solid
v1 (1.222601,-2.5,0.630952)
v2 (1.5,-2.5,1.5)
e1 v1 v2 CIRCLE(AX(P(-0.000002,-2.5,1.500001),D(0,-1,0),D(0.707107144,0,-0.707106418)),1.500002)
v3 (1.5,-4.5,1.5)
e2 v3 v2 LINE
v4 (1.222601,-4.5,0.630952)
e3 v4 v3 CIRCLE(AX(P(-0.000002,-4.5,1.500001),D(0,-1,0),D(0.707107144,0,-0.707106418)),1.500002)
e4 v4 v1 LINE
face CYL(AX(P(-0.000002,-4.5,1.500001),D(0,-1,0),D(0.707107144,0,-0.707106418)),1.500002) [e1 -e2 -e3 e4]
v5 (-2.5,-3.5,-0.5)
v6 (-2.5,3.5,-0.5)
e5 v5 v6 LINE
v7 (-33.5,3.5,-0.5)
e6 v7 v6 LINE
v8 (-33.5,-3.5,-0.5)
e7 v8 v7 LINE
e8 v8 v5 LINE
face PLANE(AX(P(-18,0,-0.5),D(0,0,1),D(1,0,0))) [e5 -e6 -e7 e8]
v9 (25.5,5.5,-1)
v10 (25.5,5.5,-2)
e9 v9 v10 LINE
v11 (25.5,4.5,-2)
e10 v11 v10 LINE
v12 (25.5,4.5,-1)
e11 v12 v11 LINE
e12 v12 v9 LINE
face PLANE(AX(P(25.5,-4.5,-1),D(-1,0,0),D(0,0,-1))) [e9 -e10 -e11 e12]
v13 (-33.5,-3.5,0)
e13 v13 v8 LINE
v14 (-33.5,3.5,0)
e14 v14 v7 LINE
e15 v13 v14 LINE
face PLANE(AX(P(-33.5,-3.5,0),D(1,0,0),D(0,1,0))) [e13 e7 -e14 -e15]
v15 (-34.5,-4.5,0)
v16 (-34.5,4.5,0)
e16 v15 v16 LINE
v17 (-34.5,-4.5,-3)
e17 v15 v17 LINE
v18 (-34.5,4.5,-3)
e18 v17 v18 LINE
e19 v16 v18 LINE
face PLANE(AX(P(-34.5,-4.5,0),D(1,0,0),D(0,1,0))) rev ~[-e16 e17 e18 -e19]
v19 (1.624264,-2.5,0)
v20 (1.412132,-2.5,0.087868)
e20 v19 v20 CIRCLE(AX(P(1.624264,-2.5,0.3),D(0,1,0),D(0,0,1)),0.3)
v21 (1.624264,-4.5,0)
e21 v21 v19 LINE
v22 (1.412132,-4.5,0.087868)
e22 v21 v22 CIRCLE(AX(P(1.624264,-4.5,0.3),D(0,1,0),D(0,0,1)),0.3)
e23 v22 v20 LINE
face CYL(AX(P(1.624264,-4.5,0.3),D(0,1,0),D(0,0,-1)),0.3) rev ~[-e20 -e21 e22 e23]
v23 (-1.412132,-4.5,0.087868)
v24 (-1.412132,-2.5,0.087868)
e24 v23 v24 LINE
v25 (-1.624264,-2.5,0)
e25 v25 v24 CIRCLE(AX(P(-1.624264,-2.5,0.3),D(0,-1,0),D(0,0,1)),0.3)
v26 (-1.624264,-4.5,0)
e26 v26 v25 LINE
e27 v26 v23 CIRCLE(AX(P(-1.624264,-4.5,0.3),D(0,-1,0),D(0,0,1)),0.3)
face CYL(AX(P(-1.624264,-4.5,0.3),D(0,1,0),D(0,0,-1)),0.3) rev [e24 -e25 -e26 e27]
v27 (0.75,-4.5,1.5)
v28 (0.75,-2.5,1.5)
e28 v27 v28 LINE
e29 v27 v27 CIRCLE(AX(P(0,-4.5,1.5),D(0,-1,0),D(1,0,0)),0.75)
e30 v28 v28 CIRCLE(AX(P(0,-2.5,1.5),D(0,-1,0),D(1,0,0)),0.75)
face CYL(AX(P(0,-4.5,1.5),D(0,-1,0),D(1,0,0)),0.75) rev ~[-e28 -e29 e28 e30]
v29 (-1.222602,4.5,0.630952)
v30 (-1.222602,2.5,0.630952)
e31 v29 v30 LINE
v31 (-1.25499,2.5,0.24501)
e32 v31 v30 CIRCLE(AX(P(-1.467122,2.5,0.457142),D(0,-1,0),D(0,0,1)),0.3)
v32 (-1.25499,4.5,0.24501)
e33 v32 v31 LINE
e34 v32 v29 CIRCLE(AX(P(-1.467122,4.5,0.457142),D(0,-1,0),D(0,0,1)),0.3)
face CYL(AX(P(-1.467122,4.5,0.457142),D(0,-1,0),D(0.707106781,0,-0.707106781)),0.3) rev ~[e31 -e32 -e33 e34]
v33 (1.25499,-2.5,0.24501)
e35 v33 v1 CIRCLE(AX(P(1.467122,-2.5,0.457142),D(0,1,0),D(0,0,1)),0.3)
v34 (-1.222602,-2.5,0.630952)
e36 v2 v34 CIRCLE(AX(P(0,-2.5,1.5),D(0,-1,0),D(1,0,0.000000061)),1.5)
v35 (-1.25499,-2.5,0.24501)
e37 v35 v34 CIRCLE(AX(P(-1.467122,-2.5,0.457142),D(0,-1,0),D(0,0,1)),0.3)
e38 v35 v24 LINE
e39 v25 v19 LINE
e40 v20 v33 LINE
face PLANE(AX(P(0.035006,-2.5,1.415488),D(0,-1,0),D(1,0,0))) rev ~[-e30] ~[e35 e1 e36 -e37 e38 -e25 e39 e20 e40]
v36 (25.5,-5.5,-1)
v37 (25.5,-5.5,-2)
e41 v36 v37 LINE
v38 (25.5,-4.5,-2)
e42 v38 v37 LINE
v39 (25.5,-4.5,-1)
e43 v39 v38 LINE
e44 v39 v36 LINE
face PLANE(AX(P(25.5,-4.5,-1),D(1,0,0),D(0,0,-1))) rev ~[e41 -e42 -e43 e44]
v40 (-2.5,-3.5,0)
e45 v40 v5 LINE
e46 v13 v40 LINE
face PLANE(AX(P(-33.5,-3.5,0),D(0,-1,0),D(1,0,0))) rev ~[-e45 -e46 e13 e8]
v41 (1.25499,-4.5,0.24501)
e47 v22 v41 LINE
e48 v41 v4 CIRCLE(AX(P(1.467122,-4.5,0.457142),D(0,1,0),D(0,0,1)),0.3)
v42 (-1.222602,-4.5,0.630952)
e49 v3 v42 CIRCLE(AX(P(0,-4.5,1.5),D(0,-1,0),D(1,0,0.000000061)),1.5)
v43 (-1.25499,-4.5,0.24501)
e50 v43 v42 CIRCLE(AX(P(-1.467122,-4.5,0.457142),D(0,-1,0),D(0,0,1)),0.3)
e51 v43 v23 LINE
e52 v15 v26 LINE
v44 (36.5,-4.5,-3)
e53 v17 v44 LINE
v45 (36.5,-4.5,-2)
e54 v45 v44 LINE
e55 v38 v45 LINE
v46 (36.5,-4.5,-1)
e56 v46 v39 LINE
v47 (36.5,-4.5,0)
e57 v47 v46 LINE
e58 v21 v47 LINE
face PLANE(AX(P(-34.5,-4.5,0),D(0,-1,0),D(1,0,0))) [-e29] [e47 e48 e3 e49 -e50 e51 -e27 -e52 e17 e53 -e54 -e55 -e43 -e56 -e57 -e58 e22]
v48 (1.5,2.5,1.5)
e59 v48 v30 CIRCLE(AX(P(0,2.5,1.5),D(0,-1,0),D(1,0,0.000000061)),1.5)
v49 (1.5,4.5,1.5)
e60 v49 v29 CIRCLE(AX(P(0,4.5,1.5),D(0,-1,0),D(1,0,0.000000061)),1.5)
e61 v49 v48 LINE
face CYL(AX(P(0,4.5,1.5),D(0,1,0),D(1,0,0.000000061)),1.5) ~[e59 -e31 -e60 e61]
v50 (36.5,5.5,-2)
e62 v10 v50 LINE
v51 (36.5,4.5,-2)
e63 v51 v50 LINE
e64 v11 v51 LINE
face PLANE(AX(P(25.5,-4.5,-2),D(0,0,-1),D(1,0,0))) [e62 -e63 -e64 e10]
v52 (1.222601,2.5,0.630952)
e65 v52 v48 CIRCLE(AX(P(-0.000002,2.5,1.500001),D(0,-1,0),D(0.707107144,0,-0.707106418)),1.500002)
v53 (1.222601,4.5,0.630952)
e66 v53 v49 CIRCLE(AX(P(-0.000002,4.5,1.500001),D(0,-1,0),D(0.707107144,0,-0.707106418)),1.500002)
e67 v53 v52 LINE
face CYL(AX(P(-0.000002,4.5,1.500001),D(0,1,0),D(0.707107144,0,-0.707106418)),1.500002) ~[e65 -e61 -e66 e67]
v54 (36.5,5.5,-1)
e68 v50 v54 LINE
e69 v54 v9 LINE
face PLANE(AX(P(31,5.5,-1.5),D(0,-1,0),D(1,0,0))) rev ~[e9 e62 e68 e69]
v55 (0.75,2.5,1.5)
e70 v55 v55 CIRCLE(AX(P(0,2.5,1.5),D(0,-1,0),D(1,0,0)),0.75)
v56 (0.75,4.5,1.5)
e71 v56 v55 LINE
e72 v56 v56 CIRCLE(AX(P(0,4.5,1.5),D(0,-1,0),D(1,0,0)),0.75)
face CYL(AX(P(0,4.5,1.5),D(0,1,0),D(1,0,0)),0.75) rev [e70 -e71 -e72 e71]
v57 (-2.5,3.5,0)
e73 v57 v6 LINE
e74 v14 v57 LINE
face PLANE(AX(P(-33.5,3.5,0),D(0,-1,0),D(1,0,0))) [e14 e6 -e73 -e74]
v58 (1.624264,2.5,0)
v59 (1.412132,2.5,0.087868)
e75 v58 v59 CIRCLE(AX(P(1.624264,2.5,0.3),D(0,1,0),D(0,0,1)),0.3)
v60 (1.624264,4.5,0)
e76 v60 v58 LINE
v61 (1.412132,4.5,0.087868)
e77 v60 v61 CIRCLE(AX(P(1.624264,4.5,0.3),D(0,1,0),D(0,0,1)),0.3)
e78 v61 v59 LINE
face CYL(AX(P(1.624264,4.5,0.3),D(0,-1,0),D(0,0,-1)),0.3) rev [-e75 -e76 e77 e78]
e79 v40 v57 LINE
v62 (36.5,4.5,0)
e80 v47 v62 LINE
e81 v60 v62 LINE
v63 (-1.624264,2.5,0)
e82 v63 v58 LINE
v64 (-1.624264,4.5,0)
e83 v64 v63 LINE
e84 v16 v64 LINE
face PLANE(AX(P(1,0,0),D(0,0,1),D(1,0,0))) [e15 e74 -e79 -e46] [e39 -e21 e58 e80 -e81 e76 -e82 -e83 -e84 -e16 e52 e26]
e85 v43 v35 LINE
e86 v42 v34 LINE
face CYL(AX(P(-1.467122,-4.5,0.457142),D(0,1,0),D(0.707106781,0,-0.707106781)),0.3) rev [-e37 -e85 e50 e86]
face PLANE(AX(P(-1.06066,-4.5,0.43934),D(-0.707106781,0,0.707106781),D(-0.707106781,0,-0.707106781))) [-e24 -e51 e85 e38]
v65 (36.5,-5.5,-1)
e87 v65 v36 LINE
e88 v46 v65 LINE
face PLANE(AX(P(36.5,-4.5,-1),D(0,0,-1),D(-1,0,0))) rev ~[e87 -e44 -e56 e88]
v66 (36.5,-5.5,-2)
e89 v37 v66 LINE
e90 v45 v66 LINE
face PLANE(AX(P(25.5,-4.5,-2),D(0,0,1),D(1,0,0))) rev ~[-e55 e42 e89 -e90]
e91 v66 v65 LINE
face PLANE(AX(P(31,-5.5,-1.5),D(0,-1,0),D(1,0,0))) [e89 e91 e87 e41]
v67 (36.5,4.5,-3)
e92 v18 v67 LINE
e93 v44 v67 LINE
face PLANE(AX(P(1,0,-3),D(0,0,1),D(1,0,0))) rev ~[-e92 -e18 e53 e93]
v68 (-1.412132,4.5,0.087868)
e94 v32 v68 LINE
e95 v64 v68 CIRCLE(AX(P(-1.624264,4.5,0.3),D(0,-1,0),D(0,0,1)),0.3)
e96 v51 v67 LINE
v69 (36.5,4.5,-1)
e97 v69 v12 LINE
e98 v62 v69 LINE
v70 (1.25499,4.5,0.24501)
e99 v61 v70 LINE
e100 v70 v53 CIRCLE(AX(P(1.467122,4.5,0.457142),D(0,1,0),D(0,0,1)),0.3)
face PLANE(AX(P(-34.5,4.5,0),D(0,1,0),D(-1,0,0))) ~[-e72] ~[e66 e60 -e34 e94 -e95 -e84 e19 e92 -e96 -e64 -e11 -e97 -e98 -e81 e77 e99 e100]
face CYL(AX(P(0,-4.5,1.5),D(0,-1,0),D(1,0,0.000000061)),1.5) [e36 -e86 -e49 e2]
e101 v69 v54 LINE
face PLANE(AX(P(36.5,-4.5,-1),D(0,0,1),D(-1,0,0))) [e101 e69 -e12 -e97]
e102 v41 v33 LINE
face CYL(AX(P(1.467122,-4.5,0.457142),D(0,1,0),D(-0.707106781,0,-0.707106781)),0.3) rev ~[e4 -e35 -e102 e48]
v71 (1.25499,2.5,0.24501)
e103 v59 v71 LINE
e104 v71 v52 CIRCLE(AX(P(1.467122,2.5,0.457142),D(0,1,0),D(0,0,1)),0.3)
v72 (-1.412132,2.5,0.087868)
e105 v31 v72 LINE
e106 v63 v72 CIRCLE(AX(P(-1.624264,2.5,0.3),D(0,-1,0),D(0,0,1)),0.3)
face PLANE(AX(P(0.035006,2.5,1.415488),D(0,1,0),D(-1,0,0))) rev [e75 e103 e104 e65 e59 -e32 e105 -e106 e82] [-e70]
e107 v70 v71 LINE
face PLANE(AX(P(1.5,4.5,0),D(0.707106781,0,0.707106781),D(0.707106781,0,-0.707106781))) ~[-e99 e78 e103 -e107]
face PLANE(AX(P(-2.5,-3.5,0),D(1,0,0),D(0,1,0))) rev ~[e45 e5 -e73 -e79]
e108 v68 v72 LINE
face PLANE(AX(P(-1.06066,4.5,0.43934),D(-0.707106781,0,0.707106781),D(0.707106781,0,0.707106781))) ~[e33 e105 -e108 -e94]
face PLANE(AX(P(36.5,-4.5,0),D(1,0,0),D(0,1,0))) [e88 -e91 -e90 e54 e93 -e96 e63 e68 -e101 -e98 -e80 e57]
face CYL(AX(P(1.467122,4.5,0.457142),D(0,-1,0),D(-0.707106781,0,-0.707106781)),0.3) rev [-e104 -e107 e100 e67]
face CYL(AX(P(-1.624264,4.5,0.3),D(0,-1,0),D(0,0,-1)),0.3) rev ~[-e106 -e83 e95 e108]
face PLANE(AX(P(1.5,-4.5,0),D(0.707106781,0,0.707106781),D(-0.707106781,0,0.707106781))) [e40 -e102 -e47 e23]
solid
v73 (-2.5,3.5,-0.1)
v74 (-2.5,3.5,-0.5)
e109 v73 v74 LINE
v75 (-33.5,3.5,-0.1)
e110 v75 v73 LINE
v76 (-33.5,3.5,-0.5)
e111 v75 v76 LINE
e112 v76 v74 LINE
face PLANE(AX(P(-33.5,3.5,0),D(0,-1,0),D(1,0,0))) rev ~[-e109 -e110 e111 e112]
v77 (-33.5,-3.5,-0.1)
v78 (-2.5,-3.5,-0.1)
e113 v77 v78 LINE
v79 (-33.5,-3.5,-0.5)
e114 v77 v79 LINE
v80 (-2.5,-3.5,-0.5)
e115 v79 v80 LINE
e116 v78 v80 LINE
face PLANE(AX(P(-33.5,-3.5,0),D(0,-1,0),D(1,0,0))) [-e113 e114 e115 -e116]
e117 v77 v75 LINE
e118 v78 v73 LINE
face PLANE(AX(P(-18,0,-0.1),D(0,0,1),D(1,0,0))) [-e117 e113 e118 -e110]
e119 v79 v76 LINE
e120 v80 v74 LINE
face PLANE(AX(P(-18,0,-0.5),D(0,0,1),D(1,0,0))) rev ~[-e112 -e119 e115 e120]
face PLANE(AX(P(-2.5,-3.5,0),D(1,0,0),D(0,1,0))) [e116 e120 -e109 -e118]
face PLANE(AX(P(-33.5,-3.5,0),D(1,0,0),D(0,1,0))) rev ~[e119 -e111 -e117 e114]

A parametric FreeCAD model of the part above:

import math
import FreeCAD as App
import Part
import Sketcher

V = App.Vector


def edges_at(feature, points):
    """Names of the edges that pass closest to the given points."""
    edges = feature.Shape.Edges
    near = lambda p: min(range(len(edges)), key=lambda i: edges[i].distToShape(Part.Vertex(*p))[0])
    return sorted({f"Edge{near(p) + 1}" for p in points})

doc = App.newDocument("Part")
body = doc.addObject("PartDesign::Body", "Body")

sketch1 = body.newObject("Sketcher::SketchObject", "Sketch")
sketch1.AttachmentSupport = (doc.getObject("XY_Plane"), [""])
sketch1.MapMode = "FlatFace"
sketch1.addGeometry([
    Part.LineSegment(V(-34.5, 4.5, 0), V(-34.5, -4.5, 0)),
    Part.LineSegment(V(-34.5, -4.5, 0), V(36.5, -4.5, 0)),
    Part.LineSegment(V(36.5, -4.5, 0), V(36.5, 4.5, 0)),
    Part.LineSegment(V(36.5, 4.5, 0), V(-34.5, 4.5, 0)),
], False)
sketch1.addConstraint([
    Sketcher.Constraint("Coincident", 0, 2, 1, 1),
    Sketcher.Constraint("Coincident", 1, 2, 2, 1),
    Sketcher.Constraint("Coincident", 2, 2, 3, 1),
    Sketcher.Constraint("Coincident", 3, 2, 0, 1),
    Sketcher.Constraint("Vertical", 0),
    Sketcher.Constraint("Horizontal", 1),
    Sketcher.Constraint("Vertical", 2),
    Sketcher.Constraint("Horizontal", 3),
    Sketcher.Constraint("DistanceX", 1, 1, 1, 2, 71.0),
    Sketcher.Constraint("DistanceY", 0, 2, 0, 1, 9.0),
    Sketcher.Constraint("DistanceX", 0, 2, -1, 1, 34.5),
    Sketcher.Constraint("DistanceY", 0, 2, -1, 1, 4.5),
])
pad1 = body.newObject("PartDesign::Pad", "Pad")
pad1.Profile = sketch1
pad1.Length = 3
pad1.Reversed = True

sketch2 = body.newObject("Sketcher::SketchObject", "Sketch001")
sketch2.AttachmentSupport = (doc.getObject("XZ_Plane"), [""])
sketch2.MapMode = "FlatFace"
sketch2.AttachmentOffset = App.Placement(V(0, 0, 4.5), App.Rotation())
sketch2.addGeometry([
    Part.ArcOfCircle(Part.Circle(V(-0.000002, 1.500001, 0), V(0, 0, 1), 1.500002), math.radians(-44.999971), math.radians(-0.000052)),
    Part.ArcOfCircle(Part.Circle(V(0, 1.5, 0), V(0, 0, 1), 1.5), math.radians(0.000003), math.radians(224.999993)),
    Part.LineSegment(V(-1.06066, 0.43934, 0), V(-1.5, 0, 0)),
    Part.LineSegment(V(-1.5, 0, 0), V(1.5, 0, 0)),
    Part.LineSegment(V(1.5, 0, 0), V(1.06066, 0.43934, 0)),
    Part.Circle(V(0, 1.5, 0), V(0, 0, 1), 0.75),
], False)
sketch2.addConstraint([
    Sketcher.Constraint("Tangent", 0, 2, 1, 1),
    Sketcher.Constraint("Coincident", 1, 2, 2, 1),
    Sketcher.Constraint("Coincident", 2, 2, 3, 1),
    Sketcher.Constraint("Coincident", 3, 2, 4, 1),
    Sketcher.Constraint("Coincident", 4, 2, 0, 1),
    Sketcher.Constraint("Horizontal", 3),
    Sketcher.Constraint("Coincident", 5, 3, 0, 3),
    Sketcher.Constraint("Symmetric", 2, 2, 3, 2, -1, 1),
    Sketcher.Constraint("Symmetric", 1, 2, 4, 2, -2),
    Sketcher.Constraint("PointOnObject", 1, 3, -2),
    Sketcher.Constraint("Perpendicular", 2, 4),
    Sketcher.Constraint("Horizontal", 5, 3, 0, 2),
    Sketcher.Constraint("Vertical", 0, 2, 3, 2),
    Sketcher.Constraint("Diameter", 5, 1.5),
    Sketcher.Constraint("Radius", 1, 1.5),
    Sketcher.Constraint("DistanceY", -1, 1, 0, 3, 1.500001),
])
pad2 = body.newObject("PartDesign::Pad", "Pad001")
pad2.Profile = sketch2
pad2.Length = 2
pad2.Reversed = True
doc.recompute()

fillet = body.newObject("PartDesign::Fillet", "Fillet")
fillet.Base = (pad2, edges_at(pad2, [
    (1.061, -3.5, 0.439),
    (-1.061, -3.5, 0.439),
    (-1.5, -3.5, 0),
    (1.5, -3.5, 0),
]))
fillet.Radius = 0.3
body2 = doc.addObject("PartDesign::Body", "Body001")
doc.recompute()

body2.BaseFeature = body
doc.recompute()

mirroring = doc.addObject("Part::Mirroring", "Mirroring")
mirroring.Source = body
mirroring.Base = V(0, 0, 0)
mirroring.Normal = V(0, -1, 0)
body3 = doc.addObject("PartDesign::Body", "Body002")
body3.BaseFeature = mirroring
boolean = body2.newObject("PartDesign::Boolean", "Boolean")
boolean.Type = "Fuse"
boolean.addObjects([body3])
doc.recompute()

sketch3 = body2.newObject("Sketcher::SketchObject", "Sketch002")
sketch3.AttachmentSupport = (doc.getObject("XZ_Plane001"), [""])
sketch3.MapMode = "FlatFace"
sketch3.AttachmentOffset = App.Placement(V(0, 0, 4.5), App.Rotation())
sketch3.addGeometry([
    Part.LineSegment(V(36.5, -2, 0), V(36.5, -1, 0)),
    Part.LineSegment(V(36.5, -1, 0), V(25.5, -1, 0)),
    Part.LineSegment(V(25.5, -1, 0), V(25.5, -2, 0)),
    Part.LineSegment(V(25.5, -2, 0), V(36.5, -2, 0)),
], False)
sketch3.addConstraint([
    Sketcher.Constraint("Coincident", 0, 2, 1, 1),
    Sketcher.Constraint("Coincident", 1, 2, 2, 1),
    Sketcher.Constraint("Coincident", 2, 2, 3, 1),
    Sketcher.Constraint("Coincident", 3, 2, 0, 1),
    Sketcher.Constraint("Vertical", 0),
    Sketcher.Constraint("Horizontal", 1),
    Sketcher.Constraint("Vertical", 2),
    Sketcher.Constraint("Horizontal", 3),
    Sketcher.Constraint("DistanceX", 1, 2, 1, 1, 11.0),
    Sketcher.Constraint("DistanceY", 0, 1, 0, 2, 1.0),
    Sketcher.Constraint("DistanceY", 0, 2, -1, 1, 1.0),
    Sketcher.Constraint("DistanceX", -1, 1, 0, 2, 36.5),
])
pad3 = body2.newObject("PartDesign::Pad", "Pad002")
pad3.Profile = sketch3
pad3.Type = "TwoLengths"
pad3.Length = 1
pad3.Length2 = 10

sketch4 = body2.newObject("Sketcher::SketchObject", "Sketch003")
sketch4.AttachmentSupport = (doc.getObject("XY_Plane001"), [""])
sketch4.MapMode = "FlatFace"
sketch4.addGeometry([
    Part.LineSegment(V(-33.5, 3.5, 0), V(-33.5, -3.5, 0)),
    Part.LineSegment(V(-33.5, -3.5, 0), V(-2.5, -3.5, 0)),
    Part.LineSegment(V(-2.5, -3.5, 0), V(-2.5, 3.5, 0)),
    Part.LineSegment(V(-2.5, 3.5, 0), V(-33.5, 3.5, 0)),
], False)
sketch4.addConstraint([
    Sketcher.Constraint("Coincident", 0, 2, 1, 1),
    Sketcher.Constraint("Coincident", 1, 2, 2, 1),
    Sketcher.Constraint("Coincident", 2, 2, 3, 1),
    Sketcher.Constraint("Coincident", 3, 2, 0, 1),
    Sketcher.Constraint("Vertical", 0),
    Sketcher.Constraint("Horizontal", 1),
    Sketcher.Constraint("Vertical", 2),
    Sketcher.Constraint("Horizontal", 3),
    Sketcher.Constraint("DistanceX", 1, 1, 1, 2, 31.0),
    Sketcher.Constraint("DistanceY", 0, 2, 0, 1, 7.0),
    Sketcher.Constraint("DistanceX", 0, 2, -1, 1, 33.5),
    Sketcher.Constraint("DistanceY", 0, 2, -1, 1, 3.5),
])
pocket1 = body2.newObject("PartDesign::Pocket", "Pocket")
pocket1.Profile = sketch4
pocket1.Length = 0.5
body4 = doc.addObject("PartDesign::Body", "Body003")

sketch5 = body4.newObject("Sketcher::SketchObject", "Sketch004")
sketch5.AttachmentSupport = (doc.getObject("XY_Plane003"), [""])
sketch5.MapMode = "FlatFace"
sketch5.addGeometry([
    Part.LineSegment(V(-33.5, 3.5, 0), V(-33.5, -3.5, 0)),
    Part.LineSegment(V(-33.5, -3.5, 0), V(-2.5, -3.5, 0)),
    Part.LineSegment(V(-2.5, -3.5, 0), V(-2.5, 3.5, 0)),
    Part.LineSegment(V(-2.5, 3.5, 0), V(-33.5, 3.5, 0)),
], False)
sketch5.addConstraint([
    Sketcher.Constraint("Coincident", 0, 2, 1, 1),
    Sketcher.Constraint("Coincident", 1, 2, 2, 1),
    Sketcher.Constraint("Coincident", 2, 2, 3, 1),
    Sketcher.Constraint("Coincident", 3, 2, 0, 1),
    Sketcher.Constraint("Vertical", 0),
    Sketcher.Constraint("Horizontal", 1),
    Sketcher.Constraint("Vertical", 2),
    Sketcher.Constraint("Horizontal", 3),
    Sketcher.Constraint("DistanceX", 1, 1, 1, 2, 31.0),
    Sketcher.Constraint("DistanceY", 0, 2, 0, 1, 7.0),
    Sketcher.Constraint("DistanceX", 0, 2, -1, 1, 33.5),
    Sketcher.Constraint("DistanceY", 0, 2, -1, 1, 3.5),
])
pad4 = body4.newObject("PartDesign::Pad", "Pad003")
pad4.Profile = sketch5
pad4.Length = 0.5
pad4.Reversed = True

sketch6 = body4.newObject("Sketcher::SketchObject", "Sketch005")
sketch6.AttachmentSupport = (doc.getObject("XY_Plane003"), [""])
sketch6.MapMode = "FlatFace"
sketch6.addGeometry([
    Part.LineSegment(V(-33.5, 3.5, 0), V(-33.5, -3.5, 0)),
    Part.LineSegment(V(-33.5, -3.5, 0), V(-2.5, -3.5, 0)),
    Part.LineSegment(V(-2.5, -3.5, 0), V(-2.5, 3.5, 0)),
    Part.LineSegment(V(-2.5, 3.5, 0), V(-33.5, 3.5, 0)),
], False)
sketch6.addConstraint([
    Sketcher.Constraint("Coincident", 0, 2, 1, 1),
    Sketcher.Constraint("Coincident", 1, 2, 2, 1),
    Sketcher.Constraint("Coincident", 2, 2, 3, 1),
    Sketcher.Constraint("Coincident", 3, 2, 0, 1),
    Sketcher.Constraint("Vertical", 0),
    Sketcher.Constraint("Horizontal", 1),
    Sketcher.Constraint("Vertical", 2),
    Sketcher.Constraint("Horizontal", 3),
    Sketcher.Constraint("DistanceX", 1, 1, 1, 2, 31.0),
    Sketcher.Constraint("DistanceY", 0, 2, 0, 1, 7.0),
    Sketcher.Constraint("DistanceX", 0, 2, -1, 1, 33.5),
    Sketcher.Constraint("DistanceY", 0, 2, -1, 1, 3.5),
])
pocket2 = body4.newObject("PartDesign::Pocket", "Pocket001")
pocket2.Profile = sketch6
pocket2.Length = 0.1
mirroring.Visibility = False

doc.recompute()
